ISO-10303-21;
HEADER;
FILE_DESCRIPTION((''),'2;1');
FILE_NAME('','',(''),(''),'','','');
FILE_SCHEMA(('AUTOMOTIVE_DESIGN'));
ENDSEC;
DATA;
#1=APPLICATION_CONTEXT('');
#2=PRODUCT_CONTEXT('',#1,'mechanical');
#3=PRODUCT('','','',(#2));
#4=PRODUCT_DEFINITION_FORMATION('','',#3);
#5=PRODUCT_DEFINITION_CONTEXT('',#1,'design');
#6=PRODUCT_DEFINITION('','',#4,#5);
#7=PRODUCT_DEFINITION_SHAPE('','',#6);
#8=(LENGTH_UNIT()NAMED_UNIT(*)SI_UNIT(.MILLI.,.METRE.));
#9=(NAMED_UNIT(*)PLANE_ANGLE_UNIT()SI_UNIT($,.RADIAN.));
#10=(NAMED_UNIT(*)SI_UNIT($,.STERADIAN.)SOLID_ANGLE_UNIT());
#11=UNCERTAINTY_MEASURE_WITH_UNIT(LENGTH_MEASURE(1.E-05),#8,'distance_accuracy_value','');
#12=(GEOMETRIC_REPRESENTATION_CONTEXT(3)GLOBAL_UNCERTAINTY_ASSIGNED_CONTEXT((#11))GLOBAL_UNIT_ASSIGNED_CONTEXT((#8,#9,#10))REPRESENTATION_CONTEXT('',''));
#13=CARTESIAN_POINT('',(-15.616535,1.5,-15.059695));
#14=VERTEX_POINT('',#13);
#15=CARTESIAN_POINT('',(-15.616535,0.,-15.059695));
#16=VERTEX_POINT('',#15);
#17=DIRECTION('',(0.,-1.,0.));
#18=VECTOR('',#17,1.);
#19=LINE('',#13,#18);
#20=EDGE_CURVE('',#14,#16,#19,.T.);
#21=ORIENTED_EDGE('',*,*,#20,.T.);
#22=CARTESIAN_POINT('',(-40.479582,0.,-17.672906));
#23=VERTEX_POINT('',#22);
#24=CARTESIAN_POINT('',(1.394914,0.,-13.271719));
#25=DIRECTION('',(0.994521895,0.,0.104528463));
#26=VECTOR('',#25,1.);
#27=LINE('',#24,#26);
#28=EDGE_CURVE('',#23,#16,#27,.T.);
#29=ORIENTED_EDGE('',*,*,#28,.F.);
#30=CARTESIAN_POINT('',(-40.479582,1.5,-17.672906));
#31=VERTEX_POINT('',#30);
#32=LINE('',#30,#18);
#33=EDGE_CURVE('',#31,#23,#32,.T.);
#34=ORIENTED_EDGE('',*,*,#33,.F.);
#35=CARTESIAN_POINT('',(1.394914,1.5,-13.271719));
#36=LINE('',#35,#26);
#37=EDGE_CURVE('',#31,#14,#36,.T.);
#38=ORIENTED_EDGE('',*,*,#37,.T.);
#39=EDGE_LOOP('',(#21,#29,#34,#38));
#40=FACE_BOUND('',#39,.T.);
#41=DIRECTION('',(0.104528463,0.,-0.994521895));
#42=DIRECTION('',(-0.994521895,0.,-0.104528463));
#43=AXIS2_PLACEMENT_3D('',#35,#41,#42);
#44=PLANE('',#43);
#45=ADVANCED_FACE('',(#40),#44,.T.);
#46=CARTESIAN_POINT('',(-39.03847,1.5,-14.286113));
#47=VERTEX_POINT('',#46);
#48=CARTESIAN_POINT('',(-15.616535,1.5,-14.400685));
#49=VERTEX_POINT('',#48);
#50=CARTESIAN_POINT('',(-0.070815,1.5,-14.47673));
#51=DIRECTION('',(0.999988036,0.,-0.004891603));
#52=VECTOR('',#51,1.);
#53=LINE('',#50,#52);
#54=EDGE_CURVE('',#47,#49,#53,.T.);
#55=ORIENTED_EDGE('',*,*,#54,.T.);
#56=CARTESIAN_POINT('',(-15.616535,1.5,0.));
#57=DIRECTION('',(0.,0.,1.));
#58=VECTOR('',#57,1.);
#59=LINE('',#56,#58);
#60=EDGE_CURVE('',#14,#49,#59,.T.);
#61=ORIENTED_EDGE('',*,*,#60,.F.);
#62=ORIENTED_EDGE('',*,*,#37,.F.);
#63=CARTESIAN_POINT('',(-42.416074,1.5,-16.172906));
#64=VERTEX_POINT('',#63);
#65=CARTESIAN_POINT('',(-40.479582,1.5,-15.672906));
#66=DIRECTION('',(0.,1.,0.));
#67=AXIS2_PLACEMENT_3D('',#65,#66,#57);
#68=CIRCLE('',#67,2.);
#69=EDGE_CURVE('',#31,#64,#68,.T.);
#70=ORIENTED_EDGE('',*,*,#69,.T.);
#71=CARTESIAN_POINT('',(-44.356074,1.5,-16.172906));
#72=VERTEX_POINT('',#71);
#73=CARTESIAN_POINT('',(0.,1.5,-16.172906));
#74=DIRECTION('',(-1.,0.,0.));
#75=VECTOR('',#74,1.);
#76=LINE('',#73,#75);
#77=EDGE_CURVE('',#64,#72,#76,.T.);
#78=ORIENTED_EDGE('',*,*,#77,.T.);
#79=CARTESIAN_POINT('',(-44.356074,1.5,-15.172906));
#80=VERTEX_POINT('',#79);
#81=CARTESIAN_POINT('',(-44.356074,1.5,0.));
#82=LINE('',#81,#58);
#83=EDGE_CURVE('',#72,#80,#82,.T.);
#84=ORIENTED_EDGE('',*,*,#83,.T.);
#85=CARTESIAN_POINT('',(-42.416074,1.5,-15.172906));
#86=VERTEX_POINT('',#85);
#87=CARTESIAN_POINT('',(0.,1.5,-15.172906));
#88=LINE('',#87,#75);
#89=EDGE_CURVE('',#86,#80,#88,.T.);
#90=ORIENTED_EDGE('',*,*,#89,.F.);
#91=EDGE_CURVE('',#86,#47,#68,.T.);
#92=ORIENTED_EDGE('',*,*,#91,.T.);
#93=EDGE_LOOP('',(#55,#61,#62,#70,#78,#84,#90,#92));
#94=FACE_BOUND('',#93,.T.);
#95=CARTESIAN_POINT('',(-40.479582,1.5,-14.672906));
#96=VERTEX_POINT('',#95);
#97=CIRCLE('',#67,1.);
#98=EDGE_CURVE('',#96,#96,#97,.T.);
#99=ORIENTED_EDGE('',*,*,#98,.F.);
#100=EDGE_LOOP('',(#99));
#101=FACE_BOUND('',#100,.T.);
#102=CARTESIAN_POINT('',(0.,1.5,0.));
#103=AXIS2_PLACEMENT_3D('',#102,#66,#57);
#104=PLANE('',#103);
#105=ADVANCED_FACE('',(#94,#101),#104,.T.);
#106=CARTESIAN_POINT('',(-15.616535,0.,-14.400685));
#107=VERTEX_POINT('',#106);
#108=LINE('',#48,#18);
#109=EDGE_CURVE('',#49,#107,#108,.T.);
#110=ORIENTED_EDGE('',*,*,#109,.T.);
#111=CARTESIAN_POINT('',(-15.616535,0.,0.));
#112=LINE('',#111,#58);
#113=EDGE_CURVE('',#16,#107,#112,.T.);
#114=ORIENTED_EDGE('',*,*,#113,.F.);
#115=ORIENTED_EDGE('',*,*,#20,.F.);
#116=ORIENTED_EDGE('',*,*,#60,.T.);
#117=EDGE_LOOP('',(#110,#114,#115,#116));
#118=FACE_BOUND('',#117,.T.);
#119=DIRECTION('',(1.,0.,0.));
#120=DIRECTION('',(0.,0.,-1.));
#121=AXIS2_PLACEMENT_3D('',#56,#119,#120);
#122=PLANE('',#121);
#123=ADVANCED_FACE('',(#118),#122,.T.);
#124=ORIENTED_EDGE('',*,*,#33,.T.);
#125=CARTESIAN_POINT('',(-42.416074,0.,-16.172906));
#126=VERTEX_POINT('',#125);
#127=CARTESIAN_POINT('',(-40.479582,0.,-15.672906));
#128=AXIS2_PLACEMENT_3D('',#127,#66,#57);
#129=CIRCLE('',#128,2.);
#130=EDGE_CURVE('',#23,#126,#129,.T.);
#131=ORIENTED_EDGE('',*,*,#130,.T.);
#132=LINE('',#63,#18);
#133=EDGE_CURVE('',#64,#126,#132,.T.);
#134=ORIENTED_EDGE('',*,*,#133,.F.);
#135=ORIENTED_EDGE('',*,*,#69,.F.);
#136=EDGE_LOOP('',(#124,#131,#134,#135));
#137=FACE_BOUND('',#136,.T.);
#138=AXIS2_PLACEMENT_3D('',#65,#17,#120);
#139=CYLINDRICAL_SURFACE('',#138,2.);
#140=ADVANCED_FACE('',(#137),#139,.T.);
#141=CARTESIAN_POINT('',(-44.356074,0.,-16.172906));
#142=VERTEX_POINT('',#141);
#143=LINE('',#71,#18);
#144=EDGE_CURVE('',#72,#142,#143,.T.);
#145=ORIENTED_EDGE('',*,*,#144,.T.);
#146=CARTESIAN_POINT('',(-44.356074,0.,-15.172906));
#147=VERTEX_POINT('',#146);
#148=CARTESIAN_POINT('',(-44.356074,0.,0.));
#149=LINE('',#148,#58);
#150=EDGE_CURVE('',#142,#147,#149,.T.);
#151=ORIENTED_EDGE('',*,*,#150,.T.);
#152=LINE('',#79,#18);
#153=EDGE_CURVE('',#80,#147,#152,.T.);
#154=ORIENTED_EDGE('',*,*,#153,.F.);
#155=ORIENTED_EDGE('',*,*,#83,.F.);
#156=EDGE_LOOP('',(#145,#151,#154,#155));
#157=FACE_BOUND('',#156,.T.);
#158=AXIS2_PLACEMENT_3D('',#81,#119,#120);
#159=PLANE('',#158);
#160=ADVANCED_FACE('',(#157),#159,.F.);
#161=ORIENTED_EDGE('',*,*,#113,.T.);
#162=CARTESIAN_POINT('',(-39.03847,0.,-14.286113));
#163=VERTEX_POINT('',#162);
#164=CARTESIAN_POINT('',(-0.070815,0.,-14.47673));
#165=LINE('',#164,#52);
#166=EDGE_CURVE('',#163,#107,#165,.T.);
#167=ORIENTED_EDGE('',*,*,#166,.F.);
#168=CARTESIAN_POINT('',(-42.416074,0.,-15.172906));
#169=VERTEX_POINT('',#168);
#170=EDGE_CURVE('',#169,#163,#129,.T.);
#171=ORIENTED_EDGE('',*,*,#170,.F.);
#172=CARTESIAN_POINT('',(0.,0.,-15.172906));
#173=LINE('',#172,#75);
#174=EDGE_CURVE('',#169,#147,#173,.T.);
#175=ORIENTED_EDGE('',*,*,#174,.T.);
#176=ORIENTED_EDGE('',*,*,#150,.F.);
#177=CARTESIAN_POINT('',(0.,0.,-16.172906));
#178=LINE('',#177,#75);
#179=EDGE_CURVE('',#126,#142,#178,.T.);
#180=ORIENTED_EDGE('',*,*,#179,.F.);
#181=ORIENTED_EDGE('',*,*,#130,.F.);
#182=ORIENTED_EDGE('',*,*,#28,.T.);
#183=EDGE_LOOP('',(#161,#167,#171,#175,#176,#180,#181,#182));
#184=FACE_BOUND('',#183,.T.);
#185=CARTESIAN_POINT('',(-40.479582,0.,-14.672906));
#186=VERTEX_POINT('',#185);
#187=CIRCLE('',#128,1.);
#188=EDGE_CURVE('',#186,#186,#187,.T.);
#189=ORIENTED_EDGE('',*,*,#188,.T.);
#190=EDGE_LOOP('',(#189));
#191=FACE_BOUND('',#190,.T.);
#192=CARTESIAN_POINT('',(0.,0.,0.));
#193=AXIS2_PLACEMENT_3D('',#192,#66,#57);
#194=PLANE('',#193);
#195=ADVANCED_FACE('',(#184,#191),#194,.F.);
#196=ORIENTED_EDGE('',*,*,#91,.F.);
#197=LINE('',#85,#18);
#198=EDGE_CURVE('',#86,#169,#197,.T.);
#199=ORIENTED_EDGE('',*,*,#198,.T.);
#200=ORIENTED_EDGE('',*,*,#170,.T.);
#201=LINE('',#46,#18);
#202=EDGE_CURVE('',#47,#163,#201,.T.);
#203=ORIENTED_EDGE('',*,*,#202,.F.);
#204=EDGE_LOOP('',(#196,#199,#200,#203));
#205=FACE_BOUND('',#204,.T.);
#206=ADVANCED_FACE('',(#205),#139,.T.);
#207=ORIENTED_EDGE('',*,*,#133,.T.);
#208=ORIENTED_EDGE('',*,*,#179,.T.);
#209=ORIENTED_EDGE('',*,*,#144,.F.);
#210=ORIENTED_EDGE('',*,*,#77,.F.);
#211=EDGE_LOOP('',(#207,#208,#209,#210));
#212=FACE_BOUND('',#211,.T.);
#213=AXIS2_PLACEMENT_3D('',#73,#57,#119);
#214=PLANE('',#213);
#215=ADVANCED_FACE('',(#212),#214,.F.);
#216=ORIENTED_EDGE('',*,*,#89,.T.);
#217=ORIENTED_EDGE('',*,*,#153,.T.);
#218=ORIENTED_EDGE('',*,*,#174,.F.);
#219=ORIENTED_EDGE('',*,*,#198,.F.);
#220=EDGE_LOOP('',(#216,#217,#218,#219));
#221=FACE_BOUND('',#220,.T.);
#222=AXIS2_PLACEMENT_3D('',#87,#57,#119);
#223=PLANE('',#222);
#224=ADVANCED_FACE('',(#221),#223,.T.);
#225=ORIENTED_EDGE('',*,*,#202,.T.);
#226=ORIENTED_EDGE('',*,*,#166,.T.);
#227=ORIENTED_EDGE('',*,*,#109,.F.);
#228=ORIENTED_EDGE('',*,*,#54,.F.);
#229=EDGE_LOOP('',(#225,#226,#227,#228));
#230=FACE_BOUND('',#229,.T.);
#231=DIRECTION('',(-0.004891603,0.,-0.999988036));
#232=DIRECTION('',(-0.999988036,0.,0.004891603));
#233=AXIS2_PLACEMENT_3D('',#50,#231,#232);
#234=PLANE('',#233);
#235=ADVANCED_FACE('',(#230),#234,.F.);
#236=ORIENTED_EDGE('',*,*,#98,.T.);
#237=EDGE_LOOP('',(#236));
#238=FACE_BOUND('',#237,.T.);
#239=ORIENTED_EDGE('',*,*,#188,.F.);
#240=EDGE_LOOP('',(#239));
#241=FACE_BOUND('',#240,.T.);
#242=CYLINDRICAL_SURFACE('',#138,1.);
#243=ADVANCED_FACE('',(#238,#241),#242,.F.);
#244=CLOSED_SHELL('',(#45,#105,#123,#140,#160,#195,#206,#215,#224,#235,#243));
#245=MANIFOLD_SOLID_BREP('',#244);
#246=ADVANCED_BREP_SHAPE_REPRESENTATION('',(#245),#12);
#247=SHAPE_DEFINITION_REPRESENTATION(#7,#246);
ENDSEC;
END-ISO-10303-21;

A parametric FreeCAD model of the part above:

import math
import FreeCAD as App
import Part
import Sketcher

V = App.Vector
Q = App.Units.Quantity

doc = App.newDocument("Part")
params = doc.addObject("Spreadsheet::Sheet", "Params")
for row, (alias, value) in enumerate([
    ("sketch1_diameter", "2 mm"),
    ("sketch1_radius", "2 mm"),
    ("sketch1_height", "1 mm"),
    ("sketch1_width", "1.94 mm"),
    ("pad1_length", "1.5 mm"),
], start=1):
    params.set(f"A{row}", alias)
    params.set(f"B{row}", "=" + value)
    params.setAlias(f"B{row}", alias)

body = doc.addObject("PartDesign::Body", "Body")

# Sketch on XZ plane
sketch1 = body.newObject("Sketcher::SketchObject", "Sketch")
sketch1.AttachmentSupport = (doc.getObject("XZ_Plane"), [""])
sketch1.MapMode = "FlatFace"
sketch1.addGeometry([
    Part.LineSegment(V(-39.03847, -14.286113, 0), V(-15.616535, -14.400685, 0)),  # 0
    Part.LineSegment(V(-15.616535, -14.400685, 0), V(-15.616535, -15.059695, 0)),  # 1
    Part.LineSegment(V(-15.616535, -15.059695, 0), V(-40.063759, -17.629202, 0)),  # 2
    Part.LineSegment(V(-40.063759, -17.629202, 0), V(-40.479582, -17.672906, 0)),  # 3
    Part.ArcOfCircle(Part.Circle(V(-40.479582, -15.672906, 0), V(0, 0, 1), 2), math.radians(-165.522488), math.radians(-90)),  # 4
    Part.LineSegment(V(-42.416074, -16.172906, 0), V(-44.356074, -16.172906, 0)),  # 5
    Part.LineSegment(V(-44.356074, -16.172906, 0), V(-44.356074, -15.172906, 0)),  # 6
    Part.LineSegment(V(-44.356074, -15.172906, 0), V(-42.416074, -15.172906, 0)),  # 7
    Part.ArcOfCircle(Part.Circle(V(-40.479582, -15.672906, 0), V(0, 0, 1), 2), math.radians(43.899589), math.radians(165.522488)),  # 8
    Part.Circle(V(-40.479582, -15.672906, 0), V(0, 0, 1), 1),  # 9
], False)
sketch1.addConstraint([
    Sketcher.Constraint("Coincident", 0, 2, 1, 1),
    Sketcher.Constraint("Coincident", 1, 2, 2, 1),
    Sketcher.Constraint("Coincident", 2, 2, 3, 1),
    Sketcher.Constraint("Coincident", 3, 2, 4, 2),
    Sketcher.Constraint("Coincident", 4, 1, 5, 1),
    Sketcher.Constraint("Coincident", 5, 2, 6, 1),
    Sketcher.Constraint("Coincident", 6, 2, 7, 1),
    Sketcher.Constraint("Coincident", 7, 2, 8, 2),
    Sketcher.Constraint("Coincident", 8, 1, 0, 1),
    Sketcher.Constraint("Vertical", 1),
    Sketcher.Constraint("Horizontal", 5),
    Sketcher.Constraint("Vertical", 6),
    Sketcher.Constraint("Horizontal", 7),
    Sketcher.Constraint("Coincident", 8, 3, 4, 3),
    Sketcher.Constraint("Coincident", 9, 3, 4, 3),
    Sketcher.Constraint("Equal", 4, 8),
    Sketcher.Constraint("Parallel", 2, 3),
    Sketcher.Constraint("Vertical", 9, 3, 3, 2),
    Sketcher.Constraint("Vertical", 4, 1, 7, 2),
    Sketcher.Constraint("Diameter", 9, Q("2 mm")),
    Sketcher.Constraint("Radius", 4, Q("2 mm")),
    Sketcher.Constraint("DistanceY", 6, 1, 6, 2, Q("1 mm")),
    Sketcher.Constraint("Angle", 2, Q("-174 deg")),
    Sketcher.Constraint("DistanceX", 5, 2, 5, 1, Q("1.94 mm")),
    Sketcher.Constraint("DistanceY", 1, 2, 1, 1, Q("0.65901 mm")),
    Sketcher.Constraint("DistanceY", 2, 2, -1, 1, Q("17.629202 mm")),
    Sketcher.Constraint("DistanceX", 2, 2, -1, 1, Q("40.063759 mm")),
    Sketcher.Constraint("DistanceX", 8, 1, -1, 1, Q("39.03847 mm")),
    Sketcher.Constraint("DistanceY", 4, 3, 0, 2, Q("1.272221 mm")),
    Sketcher.Constraint("DistanceY", 2, 2, 8, 1, Q("3.343089 mm")),
])
sketch1.setExpression("Constraints[19]", "Params.sketch1_diameter")
sketch1.setExpression("Constraints[20]", "Params.sketch1_radius")
sketch1.setExpression("Constraints[21]", "Params.sketch1_height")
sketch1.setExpression("Constraints[23]", "Params.sketch1_width")
pad1 = body.newObject("PartDesign::Pad", "Pad")
pad1.Profile = sketch1
pad1.setExpression("Length", "Params.pad1_length")
pad1.Reversed = True

doc.recompute()
